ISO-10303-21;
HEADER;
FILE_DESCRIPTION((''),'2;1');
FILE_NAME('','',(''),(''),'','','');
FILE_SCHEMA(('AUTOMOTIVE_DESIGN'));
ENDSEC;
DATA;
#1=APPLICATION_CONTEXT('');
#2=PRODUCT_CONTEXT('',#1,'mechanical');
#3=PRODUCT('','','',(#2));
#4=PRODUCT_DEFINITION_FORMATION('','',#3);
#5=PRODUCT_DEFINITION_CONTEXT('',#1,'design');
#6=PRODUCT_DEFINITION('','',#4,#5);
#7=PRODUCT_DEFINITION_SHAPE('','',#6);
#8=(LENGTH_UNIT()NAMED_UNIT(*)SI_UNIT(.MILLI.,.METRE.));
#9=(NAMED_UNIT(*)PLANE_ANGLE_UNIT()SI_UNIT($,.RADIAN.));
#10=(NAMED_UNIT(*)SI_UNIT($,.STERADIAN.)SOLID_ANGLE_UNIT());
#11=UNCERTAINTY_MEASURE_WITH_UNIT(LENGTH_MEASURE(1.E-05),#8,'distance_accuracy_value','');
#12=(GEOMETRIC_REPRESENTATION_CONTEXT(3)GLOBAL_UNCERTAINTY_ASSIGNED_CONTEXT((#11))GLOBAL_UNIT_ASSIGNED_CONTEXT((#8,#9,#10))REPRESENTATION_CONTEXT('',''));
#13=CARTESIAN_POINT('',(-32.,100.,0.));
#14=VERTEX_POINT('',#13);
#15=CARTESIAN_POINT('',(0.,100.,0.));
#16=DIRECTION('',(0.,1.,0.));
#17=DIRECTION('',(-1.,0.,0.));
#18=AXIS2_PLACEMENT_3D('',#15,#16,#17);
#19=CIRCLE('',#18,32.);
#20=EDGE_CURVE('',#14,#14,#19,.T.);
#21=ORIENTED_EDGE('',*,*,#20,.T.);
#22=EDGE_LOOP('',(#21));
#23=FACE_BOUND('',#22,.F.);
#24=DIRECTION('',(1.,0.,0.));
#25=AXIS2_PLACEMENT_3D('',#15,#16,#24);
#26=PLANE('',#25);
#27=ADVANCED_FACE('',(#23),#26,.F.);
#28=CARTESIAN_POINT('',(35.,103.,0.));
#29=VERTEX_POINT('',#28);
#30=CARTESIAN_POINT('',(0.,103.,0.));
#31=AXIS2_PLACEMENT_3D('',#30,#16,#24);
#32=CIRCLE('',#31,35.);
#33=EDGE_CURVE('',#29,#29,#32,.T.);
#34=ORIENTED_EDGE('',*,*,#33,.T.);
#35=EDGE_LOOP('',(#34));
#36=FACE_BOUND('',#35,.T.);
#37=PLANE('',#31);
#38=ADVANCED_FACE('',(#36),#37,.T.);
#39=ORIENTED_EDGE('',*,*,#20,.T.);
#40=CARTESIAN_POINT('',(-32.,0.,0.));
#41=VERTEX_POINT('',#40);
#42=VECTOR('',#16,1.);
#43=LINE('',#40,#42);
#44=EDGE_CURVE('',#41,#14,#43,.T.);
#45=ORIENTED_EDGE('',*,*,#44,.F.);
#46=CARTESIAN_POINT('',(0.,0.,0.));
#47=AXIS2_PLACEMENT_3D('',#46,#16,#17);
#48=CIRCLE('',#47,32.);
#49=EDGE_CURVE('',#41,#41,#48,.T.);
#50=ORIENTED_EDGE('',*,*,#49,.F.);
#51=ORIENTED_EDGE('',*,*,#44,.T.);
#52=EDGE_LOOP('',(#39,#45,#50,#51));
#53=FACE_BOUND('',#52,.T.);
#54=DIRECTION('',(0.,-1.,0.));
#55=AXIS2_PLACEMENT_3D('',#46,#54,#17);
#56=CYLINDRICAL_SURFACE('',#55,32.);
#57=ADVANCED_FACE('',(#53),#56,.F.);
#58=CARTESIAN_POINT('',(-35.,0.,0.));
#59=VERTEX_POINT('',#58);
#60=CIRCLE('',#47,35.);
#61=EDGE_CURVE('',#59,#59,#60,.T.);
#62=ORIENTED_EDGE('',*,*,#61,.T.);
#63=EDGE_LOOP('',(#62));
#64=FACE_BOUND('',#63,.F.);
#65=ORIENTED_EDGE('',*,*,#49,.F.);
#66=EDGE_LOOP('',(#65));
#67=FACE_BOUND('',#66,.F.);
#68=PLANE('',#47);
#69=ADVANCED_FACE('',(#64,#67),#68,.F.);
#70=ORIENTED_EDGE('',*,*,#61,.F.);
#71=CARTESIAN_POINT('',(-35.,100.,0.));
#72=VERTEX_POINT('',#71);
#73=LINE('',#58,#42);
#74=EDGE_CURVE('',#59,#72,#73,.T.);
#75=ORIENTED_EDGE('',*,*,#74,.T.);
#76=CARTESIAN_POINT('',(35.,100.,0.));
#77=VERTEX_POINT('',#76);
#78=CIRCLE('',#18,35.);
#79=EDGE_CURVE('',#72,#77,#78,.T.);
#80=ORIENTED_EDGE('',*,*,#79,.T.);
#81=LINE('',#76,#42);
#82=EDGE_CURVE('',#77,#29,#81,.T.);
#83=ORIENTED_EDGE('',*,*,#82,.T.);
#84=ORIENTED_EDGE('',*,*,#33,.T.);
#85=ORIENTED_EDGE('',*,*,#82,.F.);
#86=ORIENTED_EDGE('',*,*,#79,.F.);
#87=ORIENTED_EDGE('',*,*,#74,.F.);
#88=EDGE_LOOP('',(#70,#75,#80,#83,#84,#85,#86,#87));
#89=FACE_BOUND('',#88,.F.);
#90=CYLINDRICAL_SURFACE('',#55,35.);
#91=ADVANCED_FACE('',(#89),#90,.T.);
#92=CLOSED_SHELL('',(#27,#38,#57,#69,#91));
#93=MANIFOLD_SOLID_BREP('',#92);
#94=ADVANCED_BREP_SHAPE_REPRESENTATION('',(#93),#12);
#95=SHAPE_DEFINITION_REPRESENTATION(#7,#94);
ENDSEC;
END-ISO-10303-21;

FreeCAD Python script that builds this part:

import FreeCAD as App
import Part
import Sketcher

V = App.Vector

doc = App.newDocument("Part")
body = doc.addObject("PartDesign::Body", "Body")

# Sketch on XZ plane
sketch1 = doc.addObject("Sketcher::SketchObject", "Sketch")
body.addObject(sketch1)
sketch1.AttachmentSupport = (doc.XZ_Plane, [""])
sketch1.MapMode = "FlatFace"
sketch1.addGeometry([
    Part.Circle(V(0, 0, 0), V(0, 0, 1), 35),
    Part.Circle(V(0, 0, 0), V(0, 0, 1), 32),
], False)
sketch1.addConstraint([
    Sketcher.Constraint("Coincident", 0, 3, -1, 1),
    Sketcher.Constraint("Coincident", 1, 3, -1, 1),
    Sketcher.Constraint("Diameter", 0, 70.0),
    Sketcher.Constraint("Diameter", 1, 64.0),
])
pad1 = doc.addObject("PartDesign::Pad", "Pad")
body.addObject(pad1)
pad1.Profile = sketch1
pad1.Length = 100
pad1.Reversed = True

# Sketch on XZ plane
sketch2 = doc.addObject("Sketcher::SketchObject", "Sketch001")
body.addObject(sketch2)
sketch2.AttachmentSupport = (doc.XZ_Plane, [""])
sketch2.MapMode = "FlatFace"
sketch2.AttachmentOffset = App.Placement(V(0, 0, -100), App.Rotation())
sketch2.addGeometry(Part.Circle(V(0, 0, 0), V(0, 0, 1), 35), False)
sketch2.addConstraint([
    Sketcher.Constraint("Coincident", 0, 3, -1, 1),
    Sketcher.Constraint("Diameter", 0, 70.0),
])
pad2 = doc.addObject("PartDesign::Pad", "Pad001")
body.addObject(pad2)
pad2.Profile = sketch2
pad2.Length = 3
pad2.Reversed = True

doc.recompute()
